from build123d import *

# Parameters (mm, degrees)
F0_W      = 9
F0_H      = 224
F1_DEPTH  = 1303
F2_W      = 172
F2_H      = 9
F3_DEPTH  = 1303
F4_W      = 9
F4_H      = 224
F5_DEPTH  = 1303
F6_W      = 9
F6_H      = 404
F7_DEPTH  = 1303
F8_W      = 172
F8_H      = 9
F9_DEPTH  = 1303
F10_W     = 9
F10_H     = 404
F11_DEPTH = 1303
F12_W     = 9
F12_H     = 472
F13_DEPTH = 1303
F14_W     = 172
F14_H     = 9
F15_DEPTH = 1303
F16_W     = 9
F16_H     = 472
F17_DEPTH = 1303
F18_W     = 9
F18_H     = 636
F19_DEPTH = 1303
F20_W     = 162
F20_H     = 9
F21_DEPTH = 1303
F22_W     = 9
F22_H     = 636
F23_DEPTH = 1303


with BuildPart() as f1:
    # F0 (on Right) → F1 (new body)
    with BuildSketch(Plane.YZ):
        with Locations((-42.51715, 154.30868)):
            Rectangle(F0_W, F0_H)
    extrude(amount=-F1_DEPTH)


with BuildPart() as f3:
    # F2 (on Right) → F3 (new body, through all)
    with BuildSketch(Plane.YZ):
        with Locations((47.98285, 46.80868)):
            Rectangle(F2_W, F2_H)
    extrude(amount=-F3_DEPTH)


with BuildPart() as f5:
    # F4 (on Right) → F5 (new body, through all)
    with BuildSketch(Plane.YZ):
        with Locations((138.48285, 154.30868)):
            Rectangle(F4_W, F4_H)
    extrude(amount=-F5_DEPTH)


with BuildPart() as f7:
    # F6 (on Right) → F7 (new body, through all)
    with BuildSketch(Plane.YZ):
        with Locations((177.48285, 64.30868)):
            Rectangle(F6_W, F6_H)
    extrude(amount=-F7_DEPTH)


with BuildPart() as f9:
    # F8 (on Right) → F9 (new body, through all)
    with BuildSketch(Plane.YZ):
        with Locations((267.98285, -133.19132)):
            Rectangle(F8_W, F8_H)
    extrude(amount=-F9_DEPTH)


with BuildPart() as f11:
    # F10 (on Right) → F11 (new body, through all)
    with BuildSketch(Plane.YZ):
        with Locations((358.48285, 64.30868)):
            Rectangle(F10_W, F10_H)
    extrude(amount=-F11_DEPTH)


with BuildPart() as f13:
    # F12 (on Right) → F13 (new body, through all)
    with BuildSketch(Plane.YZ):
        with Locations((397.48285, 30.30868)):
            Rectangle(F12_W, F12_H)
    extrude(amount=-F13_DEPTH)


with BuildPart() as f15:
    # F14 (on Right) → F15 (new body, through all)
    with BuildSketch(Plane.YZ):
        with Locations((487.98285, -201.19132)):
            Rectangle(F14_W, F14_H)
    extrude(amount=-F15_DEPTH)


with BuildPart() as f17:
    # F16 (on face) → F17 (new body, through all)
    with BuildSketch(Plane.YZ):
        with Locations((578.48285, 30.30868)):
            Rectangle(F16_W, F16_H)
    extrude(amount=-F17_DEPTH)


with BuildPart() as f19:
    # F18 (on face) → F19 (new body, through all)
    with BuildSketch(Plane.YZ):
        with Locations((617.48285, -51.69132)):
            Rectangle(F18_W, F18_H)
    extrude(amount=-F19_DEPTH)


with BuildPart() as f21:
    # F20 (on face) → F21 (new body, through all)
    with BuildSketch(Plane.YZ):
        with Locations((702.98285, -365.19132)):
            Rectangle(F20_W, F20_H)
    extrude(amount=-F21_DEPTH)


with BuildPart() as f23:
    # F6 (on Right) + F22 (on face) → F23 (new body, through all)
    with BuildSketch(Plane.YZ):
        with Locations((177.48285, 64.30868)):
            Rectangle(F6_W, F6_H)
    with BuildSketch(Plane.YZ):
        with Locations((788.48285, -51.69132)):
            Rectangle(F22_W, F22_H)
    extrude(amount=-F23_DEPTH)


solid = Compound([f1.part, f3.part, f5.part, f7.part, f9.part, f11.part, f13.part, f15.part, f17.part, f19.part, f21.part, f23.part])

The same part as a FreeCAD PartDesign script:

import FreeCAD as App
import Part
import Sketcher
from FreeCAD import Vector


def add_polygon(sketch, points):
    """Adds a closed chain of lines whose ends are joined by coincident constraints."""
    first, n = sketch.GeometryCount, len(points)
    for a, b in zip(points, points[1:] + points[:1]):
        sketch.addGeometry(Part.LineSegment(App.Vector(*a, 0), App.Vector(*b, 0)), False)
    for i in range(n):
        sketch.addConstraint(Sketcher.Constraint("Coincident", first + i, 2, first + (i + 1) % n, 1))

doc = App.newDocument("Part")
body = doc.addObject("PartDesign::Body", "Body")

# Sketch on YZ plane
sketch1 = doc.addObject("Sketcher::SketchObject", "Sketch")
body.addObject(sketch1)
sketch1.AttachmentSupport = (doc.YZ_Plane, [""])
sketch1.MapMode = "FlatFace"
add_polygon(sketch1, [(-47, 266), (-47, 42), (-38, 42), (-38, 266)])  # lines 0-3
sketch1.addConstraint([
    Sketcher.Constraint("Vertical", 0),
    Sketcher.Constraint("Horizontal", 1),
    Sketcher.Constraint("Vertical", 2),
    Sketcher.Constraint("Horizontal", 3),
    Sketcher.Constraint("DistanceX", 1, 1, 1, 2, 9.0),
    Sketcher.Constraint("DistanceY", 0, 2, 0, 1, 224.0),
    Sketcher.Constraint("DistanceX", 0, 2, -1, 1, 47.01715),
    Sketcher.Constraint("DistanceY", -1, 1, 0, 2, 42.30868),
])
pad1 = doc.addObject("PartDesign::Pad", "Pad")
body.addObject(pad1)
pad1.Profile = sketch1
pad1.Length = 1303
pad1.Reversed = True
body2 = doc.addObject("PartDesign::Body", "Body001")

# Sketch on YZ plane
sketch2 = doc.addObject("Sketcher::SketchObject", "Sketch001")
body2.addObject(sketch2)
sketch2.AttachmentSupport = (doc.getObject("YZ_Plane001"), [""])
sketch2.MapMode = "FlatFace"
add_polygon(sketch2, [(-38, 51), (-38, 42), (134, 42), (134, 51)])  # lines 0-3
sketch2.addConstraint([
    Sketcher.Constraint("Vertical", 0),
    Sketcher.Constraint("Horizontal", 1),
    Sketcher.Constraint("Vertical", 2),
    Sketcher.Constraint("Horizontal", 3),
    Sketcher.Constraint("DistanceX", 1, 1, 1, 2, 172.0),
    Sketcher.Constraint("DistanceY", 0, 2, 0, 1, 9.0),
    Sketcher.Constraint("DistanceX", 0, 2, -1, 1, 38.01715),
    Sketcher.Constraint("DistanceY", -1, 1, 0, 2, 42.30868),
])
pad2 = doc.addObject("PartDesign::Pad", "Pad001")
body2.addObject(pad2)
pad2.Profile = sketch2
pad2.Length = 1303
pad2.Reversed = True
body3 = doc.addObject("PartDesign::Body", "Body002")

# Sketch on YZ plane
sketch3 = doc.addObject("Sketcher::SketchObject", "Sketch002")
body3.addObject(sketch3)
sketch3.AttachmentSupport = (doc.getObject("YZ_Plane002"), [""])
sketch3.MapMode = "FlatFace"
add_polygon(sketch3, [(134, 266), (134, 42), (143, 42), (143, 266)])  # lines 0-3
sketch3.addConstraint([
    Sketcher.Constraint("Vertical", 0),
    Sketcher.Constraint("Horizontal", 1),
    Sketcher.Constraint("Vertical", 2),
    Sketcher.Constraint("Horizontal", 3),
    Sketcher.Constraint("DistanceX", 1, 1, 1, 2, 9.0),
    Sketcher.Constraint("DistanceY", 0, 2, 0, 1, 224.0),
    Sketcher.Constraint("DistanceX", -1, 1, 0, 2, 133.98285),
    Sketcher.Constraint("DistanceY", -1, 1, 0, 2, 42.30868),
])
pad3 = doc.addObject("PartDesign::Pad", "Pad002")
body3.addObject(pad3)
pad3.Profile = sketch3
pad3.Length = 1303
pad3.Reversed = True
body4 = doc.addObject("PartDesign::Body", "Body003")

# Sketch on YZ plane
sketch4 = doc.addObject("Sketcher::SketchObject", "Sketch003")
body4.addObject(sketch4)
sketch4.AttachmentSupport = (doc.getObject("YZ_Plane003"), [""])
sketch4.MapMode = "FlatFace"
add_polygon(sketch4, [(173, 266), (173, -138), (182, -138), (182, 266)])  # lines 0-3
sketch4.addConstraint([
    Sketcher.Constraint("Vertical", 0),
    Sketcher.Constraint("Horizontal", 1),
    Sketcher.Constraint("Vertical", 2),
    Sketcher.Constraint("Horizontal", 3),
    Sketcher.Constraint("DistanceX", 1, 1, 1, 2, 9.0),
    Sketcher.Constraint("DistanceY", 0, 2, 0, 1, 404.0),
    Sketcher.Constraint("DistanceX", -1, 1, 0, 2, 172.98285),
    Sketcher.Constraint("DistanceY", 0, 2, -1, 1, 137.69132),
])
pad4 = doc.addObject("PartDesign::Pad", "Pad003")
body4.addObject(pad4)
pad4.Profile = sketch4
pad4.Length = 1303
pad4.Reversed = True
body5 = doc.addObject("PartDesign::Body", "Body004")

# Sketch on YZ plane
sketch5 = doc.addObject("Sketcher::SketchObject", "Sketch004")
body5.addObject(sketch5)
sketch5.AttachmentSupport = (doc.getObject("YZ_Plane004"), [""])
sketch5.MapMode = "FlatFace"
add_polygon(sketch5, [(182, -129), (182, -138), (354, -138), (354, -129)])  # lines 0-3
sketch5.addConstraint([
    Sketcher.Constraint("Vertical", 0),
    Sketcher.Constraint("Horizontal", 1),
    Sketcher.Constraint("Vertical", 2),
    Sketcher.Constraint("Horizontal", 3),
    Sketcher.Constraint("DistanceX", 1, 1, 1, 2, 172.0),
    Sketcher.Constraint("DistanceY", 0, 2, 0, 1, 9.0),
    Sketcher.Constraint("DistanceX", -1, 1, 0, 2, 181.98285),
    Sketcher.Constraint("DistanceY", 0, 2, -1, 1, 137.69132),
])
pad5 = doc.addObject("PartDesign::Pad", "Pad004")
body5.addObject(pad5)
pad5.Profile = sketch5
pad5.Length = 1303
pad5.Reversed = True
body6 = doc.addObject("PartDesign::Body", "Body005")

# Sketch on YZ plane
sketch6 = doc.addObject("Sketcher::SketchObject", "Sketch005")
body6.addObject(sketch6)
sketch6.AttachmentSupport = (doc.getObject("YZ_Plane005"), [""])
sketch6.MapMode = "FlatFace"
add_polygon(sketch6, [(354, 266), (354, -138), (363, -138), (363, 266)])  # lines 0-3
sketch6.addConstraint([
    Sketcher.Constraint("Vertical", 0),
    Sketcher.Constraint("Horizontal", 1),
    Sketcher.Constraint("Vertical", 2),
    Sketcher.Constraint("Horizontal", 3),
    Sketcher.Constraint("DistanceX", 1, 1, 1, 2, 9.0),
    Sketcher.Constraint("DistanceY", 0, 2, 0, 1, 404.0),
    Sketcher.Constraint("DistanceX", -1, 1, 0, 2, 353.98285),
    Sketcher.Constraint("DistanceY", 0, 2, -1, 1, 137.69132),
])
pad6 = doc.addObject("PartDesign::Pad", "Pad005")
body6.addObject(pad6)
pad6.Profile = sketch6
pad6.Length = 1303
pad6.Reversed = True
body7 = doc.addObject("PartDesign::Body", "Body006")

# Sketch on YZ plane
sketch7 = doc.addObject("Sketcher::SketchObject", "Sketch006")
body7.addObject(sketch7)
sketch7.AttachmentSupport = (doc.getObject("YZ_Plane006"), [""])
sketch7.MapMode = "FlatFace"
add_polygon(sketch7, [(393, 266), (393, -206), (402, -206), (402, 266)])  # lines 0-3
sketch7.addConstraint([
    Sketcher.Constraint("Vertical", 0),
    Sketcher.Constraint("Horizontal", 1),
    Sketcher.Constraint("Vertical", 2),
    Sketcher.Constraint("Horizontal", 3),
    Sketcher.Constraint("DistanceX", 1, 1, 1, 2, 9.0),
    Sketcher.Constraint("DistanceY", 0, 2, 0, 1, 472.0),
    Sketcher.Constraint("DistanceX", -1, 1, 0, 2, 392.98285),
    Sketcher.Constraint("DistanceY", 0, 2, -1, 1, 205.69132),
])
pad7 = doc.addObject("PartDesign::Pad", "Pad006")
body7.addObject(pad7)
pad7.Profile = sketch7
pad7.Length = 1303
pad7.Reversed = True
body8 = doc.addObject("PartDesign::Body", "Body007")

# Sketch on YZ plane
sketch8 = doc.addObject("Sketcher::SketchObject", "Sketch007")
body8.addObject(sketch8)
sketch8.AttachmentSupport = (doc.getObject("YZ_Plane007"), [""])
sketch8.MapMode = "FlatFace"
add_polygon(sketch8, [(402, -197), (402, -206), (574, -206), (574, -197)])  # lines 0-3
sketch8.addConstraint([
    Sketcher.Constraint("Vertical", 0),
    Sketcher.Constraint("Horizontal", 1),
    Sketcher.Constraint("Vertical", 2),
    Sketcher.Constraint("Horizontal", 3),
    Sketcher.Constraint("DistanceX", 1, 1, 1, 2, 172.0),
    Sketcher.Constraint("DistanceY", 0, 2, 0, 1, 9.0),
    Sketcher.Constraint("DistanceX", -1, 1, 0, 2, 401.98285),
    Sketcher.Constraint("DistanceY", 0, 2, -1, 1, 205.69132),
])
pad8 = doc.addObject("PartDesign::Pad", "Pad007")
body8.addObject(pad8)
pad8.Profile = sketch8
pad8.Length = 1303
pad8.Reversed = True
body9 = doc.addObject("PartDesign::Body", "Body008")

# Sketch on YZ plane
sketch9 = doc.addObject("Sketcher::SketchObject", "Sketch008")
body9.addObject(sketch9)
sketch9.AttachmentSupport = (doc.getObject("YZ_Plane008"), [""])
sketch9.MapMode = "FlatFace"
add_polygon(sketch9, [(574, 266), (574, -206), (583, -206), (583, 266)])  # lines 0-3
sketch9.addConstraint([
    Sketcher.Constraint("Vertical", 0),
    Sketcher.Constraint("Horizontal", 1),
    Sketcher.Constraint("Vertical", 2),
    Sketcher.Constraint("Horizontal", 3),
    Sketcher.Constraint("DistanceX", 1, 1, 1, 2, 9.0),
    Sketcher.Constraint("DistanceY", 0, 2, 0, 1, 472.0),
    Sketcher.Constraint("DistanceX", -1, 1, 0, 2, 573.98285),
    Sketcher.Constraint("DistanceY", 0, 2, -1, 1, 205.69132),
])
pad9 = doc.addObject("PartDesign::Pad", "Pad008")
body9.addObject(pad9)
pad9.Profile = sketch9
pad9.Length = 1303
pad9.Reversed = True
body10 = doc.addObject("PartDesign::Body", "Body009")

# Sketch on YZ plane
sketch10 = doc.addObject("Sketcher::SketchObject", "Sketch009")
body10.addObject(sketch10)
sketch10.AttachmentSupport = (doc.getObject("YZ_Plane009"), [""])
sketch10.MapMode = "FlatFace"
add_polygon(sketch10, [(613, 266), (613, -370), (622, -370), (622, 266)])  # lines 0-3
sketch10.addConstraint([
    Sketcher.Constraint("Vertical", 0),
    Sketcher.Constraint("Horizontal", 1),
    Sketcher.Constraint("Vertical", 2),
    Sketcher.Constraint("Horizontal", 3),
    Sketcher.Constraint("DistanceX", 1, 1, 1, 2, 9.0),
    Sketcher.Constraint("DistanceY", 0, 2, 0, 1, 636.0),
    Sketcher.Constraint("DistanceX", -1, 1, 0, 2, 612.98285),
    Sketcher.Constraint("DistanceY", 0, 2, -1, 1, 369.69132),
])
pad10 = doc.addObject("PartDesign::Pad", "Pad009")
body10.addObject(pad10)
pad10.Profile = sketch10
pad10.Length = 1303
pad10.Reversed = True
body11 = doc.addObject("PartDesign::Body", "Body010")

# Sketch on YZ plane
sketch11 = doc.addObject("Sketcher::SketchObject", "Sketch010")
body11.addObject(sketch11)
sketch11.AttachmentSupport = (doc.getObject("YZ_Plane010"), [""])
sketch11.MapMode = "FlatFace"
add_polygon(sketch11, [(622, -361), (622, -370), (784, -370), (784, -361)])  # lines 0-3
sketch11.addConstraint([
    Sketcher.Constraint("Vertical", 0),
    Sketcher.Constraint("Horizontal", 1),
    Sketcher.Constraint("Vertical", 2),
    Sketcher.Constraint("Horizontal", 3),
    Sketcher.Constraint("DistanceX", 1, 1, 1, 2, 162.0),
    Sketcher.Constraint("DistanceY", 0, 2, 0, 1, 9.0),
    Sketcher.Constraint("DistanceX", -1, 1, 0, 2, 621.98285),
    Sketcher.Constraint("DistanceY", 0, 2, -1, 1, 369.69132),
])
pad11 = doc.addObject("PartDesign::Pad", "Pad010")
body11.addObject(pad11)
pad11.Profile = sketch11
pad11.Length = 1303
pad11.Reversed = True
body12 = doc.addObject("PartDesign::Body", "Body011")
body12.AllowCompound = True

# Sketch on YZ plane
sketch12 = doc.addObject("Sketcher::SketchObject", "Sketch011")
body12.addObject(sketch12)
sketch12.AttachmentSupport = (doc.getObject("YZ_Plane011"), [""])
sketch12.MapMode = "FlatFace"
add_polygon(sketch12, [(173, 266), (173, -138), (182, -138), (182, 266)])  # lines 0-3
add_polygon(sketch12, [(784, 266), (784, -370), (793, -370), (793, 266)])  # lines 4-7
sketch12.addConstraint([
    Sketcher.Constraint("Vertical", 0),
    Sketcher.Constraint("Horizontal", 1),
    Sketcher.Constraint("Vertical", 2),
    Sketcher.Constraint("Horizontal", 3),
    Sketcher.Constraint("Vertical", 4),
    Sketcher.Constraint("Horizontal", 5),
    Sketcher.Constraint("Vertical", 6),
    Sketcher.Constraint("Horizontal", 7),
    Sketcher.Constraint("Horizontal", 3, 2, 6, 2),
    Sketcher.Constraint("Equal", 3, 5),
    Sketcher.Constraint("DistanceX", 1, 1, 1, 2, 9.0),
    Sketcher.Constraint("DistanceY", 0, 2, 0, 1, 404.0),
    Sketcher.Constraint("DistanceY", 4, 2, 4, 1, 636.0),
    Sketcher.Constraint("DistanceX", 1, 2, 4, 2, 602.0),
    Sketcher.Constraint("DistanceX", -1, 1, 0, 2, 172.98285),
    Sketcher.Constraint("DistanceY", 0, 2, -1, 1, 137.69132),
])
pad12 = doc.addObject("PartDesign::Pad", "Pad011")
body12.addObject(pad12)
pad12.Profile = sketch12
pad12.Length = 1303
pad12.Reversed = True

doc.recompute()
